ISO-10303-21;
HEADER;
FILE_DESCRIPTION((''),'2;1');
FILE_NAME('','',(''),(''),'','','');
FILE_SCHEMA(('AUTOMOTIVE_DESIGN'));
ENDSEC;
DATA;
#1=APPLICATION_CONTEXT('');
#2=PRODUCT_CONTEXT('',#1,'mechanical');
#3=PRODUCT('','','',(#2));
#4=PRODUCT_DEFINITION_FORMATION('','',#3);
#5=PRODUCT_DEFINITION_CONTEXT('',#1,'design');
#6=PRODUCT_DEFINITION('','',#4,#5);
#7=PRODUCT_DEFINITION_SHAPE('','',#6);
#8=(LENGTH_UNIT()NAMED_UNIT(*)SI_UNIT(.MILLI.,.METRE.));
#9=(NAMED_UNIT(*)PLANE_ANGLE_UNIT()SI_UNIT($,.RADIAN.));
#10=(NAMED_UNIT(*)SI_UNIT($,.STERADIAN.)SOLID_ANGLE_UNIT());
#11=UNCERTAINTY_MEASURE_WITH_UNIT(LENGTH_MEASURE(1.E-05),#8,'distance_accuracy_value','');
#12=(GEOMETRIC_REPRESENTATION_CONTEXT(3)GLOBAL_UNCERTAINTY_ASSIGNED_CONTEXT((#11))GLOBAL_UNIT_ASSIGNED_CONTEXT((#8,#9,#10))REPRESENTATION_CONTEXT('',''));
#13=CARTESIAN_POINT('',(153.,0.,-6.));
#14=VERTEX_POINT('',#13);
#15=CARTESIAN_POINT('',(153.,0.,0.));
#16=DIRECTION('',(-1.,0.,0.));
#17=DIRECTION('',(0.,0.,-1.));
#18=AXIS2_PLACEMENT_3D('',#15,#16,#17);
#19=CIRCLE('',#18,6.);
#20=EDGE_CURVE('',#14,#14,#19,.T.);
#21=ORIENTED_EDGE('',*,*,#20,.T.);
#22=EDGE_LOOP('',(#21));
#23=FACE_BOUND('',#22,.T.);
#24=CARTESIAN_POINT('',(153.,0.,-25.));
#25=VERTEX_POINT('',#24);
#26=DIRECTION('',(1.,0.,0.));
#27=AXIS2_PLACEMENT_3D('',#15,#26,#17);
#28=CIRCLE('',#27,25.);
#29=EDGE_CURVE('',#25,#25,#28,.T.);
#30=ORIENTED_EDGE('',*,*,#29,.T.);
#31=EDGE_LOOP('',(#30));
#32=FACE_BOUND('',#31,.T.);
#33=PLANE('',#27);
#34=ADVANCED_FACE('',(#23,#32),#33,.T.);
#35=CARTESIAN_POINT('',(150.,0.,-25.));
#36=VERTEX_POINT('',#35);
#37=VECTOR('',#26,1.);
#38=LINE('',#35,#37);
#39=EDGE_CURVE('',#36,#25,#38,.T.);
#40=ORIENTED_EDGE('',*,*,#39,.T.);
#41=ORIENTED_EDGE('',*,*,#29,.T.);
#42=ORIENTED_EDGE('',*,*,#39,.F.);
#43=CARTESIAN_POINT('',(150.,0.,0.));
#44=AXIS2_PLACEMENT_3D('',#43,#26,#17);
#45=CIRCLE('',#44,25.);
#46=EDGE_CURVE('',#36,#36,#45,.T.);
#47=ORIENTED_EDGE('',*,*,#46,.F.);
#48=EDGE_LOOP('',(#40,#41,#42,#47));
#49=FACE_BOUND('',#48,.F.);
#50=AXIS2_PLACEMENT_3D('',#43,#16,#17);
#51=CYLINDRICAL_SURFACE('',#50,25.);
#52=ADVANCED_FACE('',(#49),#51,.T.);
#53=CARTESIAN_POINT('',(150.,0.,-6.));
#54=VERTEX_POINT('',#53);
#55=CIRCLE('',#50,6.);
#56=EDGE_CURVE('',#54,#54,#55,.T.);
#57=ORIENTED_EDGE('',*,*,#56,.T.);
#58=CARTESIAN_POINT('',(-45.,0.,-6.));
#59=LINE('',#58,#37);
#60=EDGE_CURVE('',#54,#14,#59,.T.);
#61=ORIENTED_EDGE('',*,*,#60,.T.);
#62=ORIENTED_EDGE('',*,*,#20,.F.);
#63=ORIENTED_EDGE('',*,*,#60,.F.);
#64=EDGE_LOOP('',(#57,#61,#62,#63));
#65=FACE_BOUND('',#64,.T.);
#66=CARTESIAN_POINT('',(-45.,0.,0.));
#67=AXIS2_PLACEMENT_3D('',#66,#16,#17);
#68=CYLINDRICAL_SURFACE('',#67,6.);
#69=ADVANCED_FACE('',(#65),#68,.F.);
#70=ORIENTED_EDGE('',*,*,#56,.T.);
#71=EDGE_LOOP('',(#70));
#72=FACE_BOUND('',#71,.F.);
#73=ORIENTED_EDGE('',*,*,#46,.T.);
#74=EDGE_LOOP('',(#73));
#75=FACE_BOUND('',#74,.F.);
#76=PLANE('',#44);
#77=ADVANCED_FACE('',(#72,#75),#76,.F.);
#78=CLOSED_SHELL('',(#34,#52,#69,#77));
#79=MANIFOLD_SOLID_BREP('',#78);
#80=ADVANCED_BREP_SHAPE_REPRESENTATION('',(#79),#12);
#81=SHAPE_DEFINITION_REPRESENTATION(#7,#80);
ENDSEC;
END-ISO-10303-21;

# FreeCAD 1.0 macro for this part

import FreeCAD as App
import Part
import Sketcher
from FreeCAD import Vector

doc = App.newDocument("Part")
body = doc.addObject("PartDesign::Body", "Body")

# Sketch on XY plane
sketch1 = body.newObject("Sketcher::SketchObject", "Sketch")
sketch1.AttachmentSupport = (doc.getObject("XY_Plane"), [""])
sketch1.MapMode = "FlatFace"
sketch1.addGeometry(Part.Circle(Vector(0, 0, 0), Vector(0, 0, 1), 6), False)
sketch1.addConstraint([
    Sketcher.Constraint("Coincident", 0, 3, -1, 1),
    Sketcher.Constraint("Diameter", 0, 12.0),
])
pad1 = body.newObject("PartDesign::Pad", "Pad")
pad1.Profile = sketch1
pad1.Length = 236
body2 = doc.addObject("PartDesign::Body", "Body001")
doc.recompute()

body.Placement = App.Placement(Vector(0, 0, 0), App.Rotation(Vector(0, 1, 0), 90))
boolean = body2.newObject("PartDesign::Boolean", "Boolean")
boolean.Type = "Fuse"
boolean.addObjects([body])
body3 = doc.addObject("PartDesign::Body", "Body002")
doc.recompute()

body2.Placement = App.Placement(Vector(-45, 0, 0), App.Rotation(Vector(0, 0, 1), 0))
boolean2 = body3.newObject("PartDesign::Boolean", "Boolean001")
boolean2.Type = "Fuse"
boolean2.addObjects([body2])
body4 = doc.addObject("PartDesign::Body", "Body003")

# Sketch on XY plane
sketch2 = body4.newObject("Sketcher::SketchObject", "Sketch001")
sketch2.AttachmentSupport = (doc.getObject("XY_Plane003"), [""])
sketch2.MapMode = "FlatFace"
sketch2.addGeometry(Part.Circle(Vector(0, 0, 0), Vector(0, 0, 1), 25), False)
sketch2.addConstraint([
    Sketcher.Constraint("Coincident", 0, 3, -1, 1),
    Sketcher.Constraint("Diameter", 0, 50.0),
])
pad2 = body4.newObject("PartDesign::Pad", "Pad001")
pad2.Profile = sketch2
pad2.Length = 3
body5 = doc.addObject("PartDesign::Body", "Body004")
doc.recompute()

body4.Placement = App.Placement(Vector(0, 0, 0), App.Rotation(Vector(0, 1, 0), 90))
boolean3 = body5.newObject("PartDesign::Boolean", "Boolean002")
boolean3.Type = "Fuse"
boolean3.addObjects([body4])
body6 = doc.addObject("PartDesign::Body", "Body005")
doc.recompute()

body5.Placement = App.Placement(Vector(150, 0, 0), App.Rotation(Vector(0, 0, 1), 0))
boolean4 = body6.newObject("PartDesign::Boolean", "Boolean003")
boolean4.Type = "Fuse"
boolean4.addObjects([body5])
doc.recompute()

boolean5 = body6.newObject("PartDesign::Boolean", "Boolean004")
boolean5.Type = "Cut"
boolean5.addObjects([body3])

doc.recompute()
